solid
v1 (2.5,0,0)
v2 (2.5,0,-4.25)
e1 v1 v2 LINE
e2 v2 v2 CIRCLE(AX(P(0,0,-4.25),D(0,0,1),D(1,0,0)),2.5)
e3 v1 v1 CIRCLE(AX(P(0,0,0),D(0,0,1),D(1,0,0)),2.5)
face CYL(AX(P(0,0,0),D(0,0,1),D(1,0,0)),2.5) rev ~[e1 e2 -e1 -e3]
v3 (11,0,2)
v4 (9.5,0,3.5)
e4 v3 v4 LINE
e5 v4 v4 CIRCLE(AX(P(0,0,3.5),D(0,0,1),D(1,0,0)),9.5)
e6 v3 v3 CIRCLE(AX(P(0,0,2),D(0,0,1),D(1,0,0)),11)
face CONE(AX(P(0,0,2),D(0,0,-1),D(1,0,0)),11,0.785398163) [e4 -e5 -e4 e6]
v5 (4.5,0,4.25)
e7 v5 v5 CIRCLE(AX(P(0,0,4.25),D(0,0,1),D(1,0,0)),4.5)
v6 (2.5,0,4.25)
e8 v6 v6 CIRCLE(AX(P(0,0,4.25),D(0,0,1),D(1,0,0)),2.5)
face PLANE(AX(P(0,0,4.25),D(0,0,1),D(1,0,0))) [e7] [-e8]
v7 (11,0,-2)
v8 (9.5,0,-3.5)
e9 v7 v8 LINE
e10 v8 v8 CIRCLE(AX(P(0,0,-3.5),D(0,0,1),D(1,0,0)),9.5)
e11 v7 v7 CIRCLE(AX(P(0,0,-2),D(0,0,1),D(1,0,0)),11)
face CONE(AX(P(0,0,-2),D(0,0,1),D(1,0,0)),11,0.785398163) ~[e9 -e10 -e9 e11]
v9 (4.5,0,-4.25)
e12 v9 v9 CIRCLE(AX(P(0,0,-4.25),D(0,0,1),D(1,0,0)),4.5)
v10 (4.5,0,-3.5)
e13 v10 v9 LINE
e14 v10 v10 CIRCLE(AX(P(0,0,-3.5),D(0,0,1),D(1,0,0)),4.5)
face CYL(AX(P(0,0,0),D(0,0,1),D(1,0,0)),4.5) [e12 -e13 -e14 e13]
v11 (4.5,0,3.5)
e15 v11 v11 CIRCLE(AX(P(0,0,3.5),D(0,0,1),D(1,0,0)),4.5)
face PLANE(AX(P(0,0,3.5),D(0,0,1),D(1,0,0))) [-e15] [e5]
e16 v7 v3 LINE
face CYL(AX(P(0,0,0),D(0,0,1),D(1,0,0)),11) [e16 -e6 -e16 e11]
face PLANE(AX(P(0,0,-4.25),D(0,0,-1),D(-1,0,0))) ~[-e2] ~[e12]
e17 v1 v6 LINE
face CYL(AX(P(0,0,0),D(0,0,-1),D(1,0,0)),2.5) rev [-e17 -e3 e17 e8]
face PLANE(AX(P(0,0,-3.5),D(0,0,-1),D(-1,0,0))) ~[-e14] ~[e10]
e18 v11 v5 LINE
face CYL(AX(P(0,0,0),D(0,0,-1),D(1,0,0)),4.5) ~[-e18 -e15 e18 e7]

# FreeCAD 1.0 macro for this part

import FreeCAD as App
import Part
import Sketcher

V = App.Vector


def edges_at(feature, points):
    """Names of the edges that pass closest to the given points."""
    edges = feature.Shape.Edges
    near = lambda p: min(range(len(edges)), key=lambda i: edges[i].distToShape(Part.Vertex(*p))[0])
    return sorted({f"Edge{near(p) + 1}" for p in points})

doc = App.newDocument("Part")
params = doc.addObject("Spreadsheet::Sheet", "Params")
for row, (alias, value) in enumerate([
    ("sketch1_diameter", "9 mm"),
    ("sketch1_diameter2", "5 mm"),
    ("pad1_length", "4.25 mm"),
    ("sketch2_diameter", "22 mm"),
    ("sketch2_diameter2", "9 mm"),
    ("pad2_length", "3.5 mm"),
    ("chamfer_size", "1.5 mm"),
], start=1):
    params.set(f"A{row}", alias)
    params.set(f"B{row}", "=" + value)
    params.setAlias(f"B{row}", alias)

body = doc.addObject("PartDesign::Body", "Body")

# Sketch on XY plane
sketch1 = doc.addObject("Sketcher::SketchObject", "Sketch")
body.addObject(sketch1)
sketch1.AttachmentSupport = (doc.XY_Plane, [""])
sketch1.MapMode = "FlatFace"
sketch1.addGeometry([
    Part.Circle(V(0, 0, 0), V(0, 0, 1), 4.5),
    Part.Circle(V(0, 0, 0), V(0, 0, 1), 2.5),
], False)
sketch1.addConstraint([
    Sketcher.Constraint("Coincident", 0, 3, -1, 1),
    Sketcher.Constraint("Coincident", 1, 3, -1, 1),
    Sketcher.Constraint("Diameter", 0, 9.0),
    Sketcher.Constraint("Diameter", 1, 5.0),
])
sketch1.setExpression("Constraints[2]", "Params.sketch1_diameter")
sketch1.setExpression("Constraints[3]", "Params.sketch1_diameter2")
pad1 = doc.addObject("PartDesign::Pad", "Pad")
body.addObject(pad1)
pad1.Profile = sketch1
pad1.setExpression("Length", "Params.pad1_length")

# Sketch on XY plane
sketch2 = doc.addObject("Sketcher::SketchObject", "Sketch001")
body.addObject(sketch2)
sketch2.AttachmentSupport = (doc.XY_Plane, [""])
sketch2.MapMode = "FlatFace"
sketch2.addGeometry([
    Part.Circle(V(0, 0, 0), V(0, 0, 1), 11),
    Part.Circle(V(0, 0, 0), V(0, 0, 1), 4.5),
], False)
sketch2.addConstraint([
    Sketcher.Constraint("Coincident", 0, 3, -1, 1),
    Sketcher.Constraint("Coincident", 1, 3, -1, 1),
    Sketcher.Constraint("Diameter", 0, 22.0),
    Sketcher.Constraint("Diameter", 1, 9.0),
])
sketch2.setExpression("Constraints[2]", "Params.sketch2_diameter")
sketch2.setExpression("Constraints[3]", "Params.sketch2_diameter2")
pad2 = doc.addObject("PartDesign::Pad", "Pad001")
body.addObject(pad2)
pad2.Profile = sketch2
pad2.setExpression("Length", "Params.pad2_length")
doc.recompute()

chamfer = doc.addObject("PartDesign::Chamfer", "Chamfer")
body.addObject(chamfer)
chamfer.Base = (pad2, edges_at(pad2, [(-11, 0, 3.5)]))
chamfer.setExpression("Size", "Params.chamfer_size")
body2 = doc.addObject("PartDesign::Body", "Body001")
doc.recompute()

body2.BaseFeature = body
doc.recompute()

mirroring = doc.addObject("Part::Mirroring", "Mirroring")
mirroring.Source = body
mirroring.Base = V(0, 0, 0)
mirroring.Normal = V(0, 0, -1)
body3 = doc.addObject("PartDesign::Body", "Body002")
body3.BaseFeature = mirroring
boolean = doc.addObject("PartDesign::Boolean", "Boolean")
body2.addObject(boolean)
boolean.Type = "Fuse"
boolean.addObjects([body3])
doc.recompute()
mirroring.Visibility = False

doc.recompute()
